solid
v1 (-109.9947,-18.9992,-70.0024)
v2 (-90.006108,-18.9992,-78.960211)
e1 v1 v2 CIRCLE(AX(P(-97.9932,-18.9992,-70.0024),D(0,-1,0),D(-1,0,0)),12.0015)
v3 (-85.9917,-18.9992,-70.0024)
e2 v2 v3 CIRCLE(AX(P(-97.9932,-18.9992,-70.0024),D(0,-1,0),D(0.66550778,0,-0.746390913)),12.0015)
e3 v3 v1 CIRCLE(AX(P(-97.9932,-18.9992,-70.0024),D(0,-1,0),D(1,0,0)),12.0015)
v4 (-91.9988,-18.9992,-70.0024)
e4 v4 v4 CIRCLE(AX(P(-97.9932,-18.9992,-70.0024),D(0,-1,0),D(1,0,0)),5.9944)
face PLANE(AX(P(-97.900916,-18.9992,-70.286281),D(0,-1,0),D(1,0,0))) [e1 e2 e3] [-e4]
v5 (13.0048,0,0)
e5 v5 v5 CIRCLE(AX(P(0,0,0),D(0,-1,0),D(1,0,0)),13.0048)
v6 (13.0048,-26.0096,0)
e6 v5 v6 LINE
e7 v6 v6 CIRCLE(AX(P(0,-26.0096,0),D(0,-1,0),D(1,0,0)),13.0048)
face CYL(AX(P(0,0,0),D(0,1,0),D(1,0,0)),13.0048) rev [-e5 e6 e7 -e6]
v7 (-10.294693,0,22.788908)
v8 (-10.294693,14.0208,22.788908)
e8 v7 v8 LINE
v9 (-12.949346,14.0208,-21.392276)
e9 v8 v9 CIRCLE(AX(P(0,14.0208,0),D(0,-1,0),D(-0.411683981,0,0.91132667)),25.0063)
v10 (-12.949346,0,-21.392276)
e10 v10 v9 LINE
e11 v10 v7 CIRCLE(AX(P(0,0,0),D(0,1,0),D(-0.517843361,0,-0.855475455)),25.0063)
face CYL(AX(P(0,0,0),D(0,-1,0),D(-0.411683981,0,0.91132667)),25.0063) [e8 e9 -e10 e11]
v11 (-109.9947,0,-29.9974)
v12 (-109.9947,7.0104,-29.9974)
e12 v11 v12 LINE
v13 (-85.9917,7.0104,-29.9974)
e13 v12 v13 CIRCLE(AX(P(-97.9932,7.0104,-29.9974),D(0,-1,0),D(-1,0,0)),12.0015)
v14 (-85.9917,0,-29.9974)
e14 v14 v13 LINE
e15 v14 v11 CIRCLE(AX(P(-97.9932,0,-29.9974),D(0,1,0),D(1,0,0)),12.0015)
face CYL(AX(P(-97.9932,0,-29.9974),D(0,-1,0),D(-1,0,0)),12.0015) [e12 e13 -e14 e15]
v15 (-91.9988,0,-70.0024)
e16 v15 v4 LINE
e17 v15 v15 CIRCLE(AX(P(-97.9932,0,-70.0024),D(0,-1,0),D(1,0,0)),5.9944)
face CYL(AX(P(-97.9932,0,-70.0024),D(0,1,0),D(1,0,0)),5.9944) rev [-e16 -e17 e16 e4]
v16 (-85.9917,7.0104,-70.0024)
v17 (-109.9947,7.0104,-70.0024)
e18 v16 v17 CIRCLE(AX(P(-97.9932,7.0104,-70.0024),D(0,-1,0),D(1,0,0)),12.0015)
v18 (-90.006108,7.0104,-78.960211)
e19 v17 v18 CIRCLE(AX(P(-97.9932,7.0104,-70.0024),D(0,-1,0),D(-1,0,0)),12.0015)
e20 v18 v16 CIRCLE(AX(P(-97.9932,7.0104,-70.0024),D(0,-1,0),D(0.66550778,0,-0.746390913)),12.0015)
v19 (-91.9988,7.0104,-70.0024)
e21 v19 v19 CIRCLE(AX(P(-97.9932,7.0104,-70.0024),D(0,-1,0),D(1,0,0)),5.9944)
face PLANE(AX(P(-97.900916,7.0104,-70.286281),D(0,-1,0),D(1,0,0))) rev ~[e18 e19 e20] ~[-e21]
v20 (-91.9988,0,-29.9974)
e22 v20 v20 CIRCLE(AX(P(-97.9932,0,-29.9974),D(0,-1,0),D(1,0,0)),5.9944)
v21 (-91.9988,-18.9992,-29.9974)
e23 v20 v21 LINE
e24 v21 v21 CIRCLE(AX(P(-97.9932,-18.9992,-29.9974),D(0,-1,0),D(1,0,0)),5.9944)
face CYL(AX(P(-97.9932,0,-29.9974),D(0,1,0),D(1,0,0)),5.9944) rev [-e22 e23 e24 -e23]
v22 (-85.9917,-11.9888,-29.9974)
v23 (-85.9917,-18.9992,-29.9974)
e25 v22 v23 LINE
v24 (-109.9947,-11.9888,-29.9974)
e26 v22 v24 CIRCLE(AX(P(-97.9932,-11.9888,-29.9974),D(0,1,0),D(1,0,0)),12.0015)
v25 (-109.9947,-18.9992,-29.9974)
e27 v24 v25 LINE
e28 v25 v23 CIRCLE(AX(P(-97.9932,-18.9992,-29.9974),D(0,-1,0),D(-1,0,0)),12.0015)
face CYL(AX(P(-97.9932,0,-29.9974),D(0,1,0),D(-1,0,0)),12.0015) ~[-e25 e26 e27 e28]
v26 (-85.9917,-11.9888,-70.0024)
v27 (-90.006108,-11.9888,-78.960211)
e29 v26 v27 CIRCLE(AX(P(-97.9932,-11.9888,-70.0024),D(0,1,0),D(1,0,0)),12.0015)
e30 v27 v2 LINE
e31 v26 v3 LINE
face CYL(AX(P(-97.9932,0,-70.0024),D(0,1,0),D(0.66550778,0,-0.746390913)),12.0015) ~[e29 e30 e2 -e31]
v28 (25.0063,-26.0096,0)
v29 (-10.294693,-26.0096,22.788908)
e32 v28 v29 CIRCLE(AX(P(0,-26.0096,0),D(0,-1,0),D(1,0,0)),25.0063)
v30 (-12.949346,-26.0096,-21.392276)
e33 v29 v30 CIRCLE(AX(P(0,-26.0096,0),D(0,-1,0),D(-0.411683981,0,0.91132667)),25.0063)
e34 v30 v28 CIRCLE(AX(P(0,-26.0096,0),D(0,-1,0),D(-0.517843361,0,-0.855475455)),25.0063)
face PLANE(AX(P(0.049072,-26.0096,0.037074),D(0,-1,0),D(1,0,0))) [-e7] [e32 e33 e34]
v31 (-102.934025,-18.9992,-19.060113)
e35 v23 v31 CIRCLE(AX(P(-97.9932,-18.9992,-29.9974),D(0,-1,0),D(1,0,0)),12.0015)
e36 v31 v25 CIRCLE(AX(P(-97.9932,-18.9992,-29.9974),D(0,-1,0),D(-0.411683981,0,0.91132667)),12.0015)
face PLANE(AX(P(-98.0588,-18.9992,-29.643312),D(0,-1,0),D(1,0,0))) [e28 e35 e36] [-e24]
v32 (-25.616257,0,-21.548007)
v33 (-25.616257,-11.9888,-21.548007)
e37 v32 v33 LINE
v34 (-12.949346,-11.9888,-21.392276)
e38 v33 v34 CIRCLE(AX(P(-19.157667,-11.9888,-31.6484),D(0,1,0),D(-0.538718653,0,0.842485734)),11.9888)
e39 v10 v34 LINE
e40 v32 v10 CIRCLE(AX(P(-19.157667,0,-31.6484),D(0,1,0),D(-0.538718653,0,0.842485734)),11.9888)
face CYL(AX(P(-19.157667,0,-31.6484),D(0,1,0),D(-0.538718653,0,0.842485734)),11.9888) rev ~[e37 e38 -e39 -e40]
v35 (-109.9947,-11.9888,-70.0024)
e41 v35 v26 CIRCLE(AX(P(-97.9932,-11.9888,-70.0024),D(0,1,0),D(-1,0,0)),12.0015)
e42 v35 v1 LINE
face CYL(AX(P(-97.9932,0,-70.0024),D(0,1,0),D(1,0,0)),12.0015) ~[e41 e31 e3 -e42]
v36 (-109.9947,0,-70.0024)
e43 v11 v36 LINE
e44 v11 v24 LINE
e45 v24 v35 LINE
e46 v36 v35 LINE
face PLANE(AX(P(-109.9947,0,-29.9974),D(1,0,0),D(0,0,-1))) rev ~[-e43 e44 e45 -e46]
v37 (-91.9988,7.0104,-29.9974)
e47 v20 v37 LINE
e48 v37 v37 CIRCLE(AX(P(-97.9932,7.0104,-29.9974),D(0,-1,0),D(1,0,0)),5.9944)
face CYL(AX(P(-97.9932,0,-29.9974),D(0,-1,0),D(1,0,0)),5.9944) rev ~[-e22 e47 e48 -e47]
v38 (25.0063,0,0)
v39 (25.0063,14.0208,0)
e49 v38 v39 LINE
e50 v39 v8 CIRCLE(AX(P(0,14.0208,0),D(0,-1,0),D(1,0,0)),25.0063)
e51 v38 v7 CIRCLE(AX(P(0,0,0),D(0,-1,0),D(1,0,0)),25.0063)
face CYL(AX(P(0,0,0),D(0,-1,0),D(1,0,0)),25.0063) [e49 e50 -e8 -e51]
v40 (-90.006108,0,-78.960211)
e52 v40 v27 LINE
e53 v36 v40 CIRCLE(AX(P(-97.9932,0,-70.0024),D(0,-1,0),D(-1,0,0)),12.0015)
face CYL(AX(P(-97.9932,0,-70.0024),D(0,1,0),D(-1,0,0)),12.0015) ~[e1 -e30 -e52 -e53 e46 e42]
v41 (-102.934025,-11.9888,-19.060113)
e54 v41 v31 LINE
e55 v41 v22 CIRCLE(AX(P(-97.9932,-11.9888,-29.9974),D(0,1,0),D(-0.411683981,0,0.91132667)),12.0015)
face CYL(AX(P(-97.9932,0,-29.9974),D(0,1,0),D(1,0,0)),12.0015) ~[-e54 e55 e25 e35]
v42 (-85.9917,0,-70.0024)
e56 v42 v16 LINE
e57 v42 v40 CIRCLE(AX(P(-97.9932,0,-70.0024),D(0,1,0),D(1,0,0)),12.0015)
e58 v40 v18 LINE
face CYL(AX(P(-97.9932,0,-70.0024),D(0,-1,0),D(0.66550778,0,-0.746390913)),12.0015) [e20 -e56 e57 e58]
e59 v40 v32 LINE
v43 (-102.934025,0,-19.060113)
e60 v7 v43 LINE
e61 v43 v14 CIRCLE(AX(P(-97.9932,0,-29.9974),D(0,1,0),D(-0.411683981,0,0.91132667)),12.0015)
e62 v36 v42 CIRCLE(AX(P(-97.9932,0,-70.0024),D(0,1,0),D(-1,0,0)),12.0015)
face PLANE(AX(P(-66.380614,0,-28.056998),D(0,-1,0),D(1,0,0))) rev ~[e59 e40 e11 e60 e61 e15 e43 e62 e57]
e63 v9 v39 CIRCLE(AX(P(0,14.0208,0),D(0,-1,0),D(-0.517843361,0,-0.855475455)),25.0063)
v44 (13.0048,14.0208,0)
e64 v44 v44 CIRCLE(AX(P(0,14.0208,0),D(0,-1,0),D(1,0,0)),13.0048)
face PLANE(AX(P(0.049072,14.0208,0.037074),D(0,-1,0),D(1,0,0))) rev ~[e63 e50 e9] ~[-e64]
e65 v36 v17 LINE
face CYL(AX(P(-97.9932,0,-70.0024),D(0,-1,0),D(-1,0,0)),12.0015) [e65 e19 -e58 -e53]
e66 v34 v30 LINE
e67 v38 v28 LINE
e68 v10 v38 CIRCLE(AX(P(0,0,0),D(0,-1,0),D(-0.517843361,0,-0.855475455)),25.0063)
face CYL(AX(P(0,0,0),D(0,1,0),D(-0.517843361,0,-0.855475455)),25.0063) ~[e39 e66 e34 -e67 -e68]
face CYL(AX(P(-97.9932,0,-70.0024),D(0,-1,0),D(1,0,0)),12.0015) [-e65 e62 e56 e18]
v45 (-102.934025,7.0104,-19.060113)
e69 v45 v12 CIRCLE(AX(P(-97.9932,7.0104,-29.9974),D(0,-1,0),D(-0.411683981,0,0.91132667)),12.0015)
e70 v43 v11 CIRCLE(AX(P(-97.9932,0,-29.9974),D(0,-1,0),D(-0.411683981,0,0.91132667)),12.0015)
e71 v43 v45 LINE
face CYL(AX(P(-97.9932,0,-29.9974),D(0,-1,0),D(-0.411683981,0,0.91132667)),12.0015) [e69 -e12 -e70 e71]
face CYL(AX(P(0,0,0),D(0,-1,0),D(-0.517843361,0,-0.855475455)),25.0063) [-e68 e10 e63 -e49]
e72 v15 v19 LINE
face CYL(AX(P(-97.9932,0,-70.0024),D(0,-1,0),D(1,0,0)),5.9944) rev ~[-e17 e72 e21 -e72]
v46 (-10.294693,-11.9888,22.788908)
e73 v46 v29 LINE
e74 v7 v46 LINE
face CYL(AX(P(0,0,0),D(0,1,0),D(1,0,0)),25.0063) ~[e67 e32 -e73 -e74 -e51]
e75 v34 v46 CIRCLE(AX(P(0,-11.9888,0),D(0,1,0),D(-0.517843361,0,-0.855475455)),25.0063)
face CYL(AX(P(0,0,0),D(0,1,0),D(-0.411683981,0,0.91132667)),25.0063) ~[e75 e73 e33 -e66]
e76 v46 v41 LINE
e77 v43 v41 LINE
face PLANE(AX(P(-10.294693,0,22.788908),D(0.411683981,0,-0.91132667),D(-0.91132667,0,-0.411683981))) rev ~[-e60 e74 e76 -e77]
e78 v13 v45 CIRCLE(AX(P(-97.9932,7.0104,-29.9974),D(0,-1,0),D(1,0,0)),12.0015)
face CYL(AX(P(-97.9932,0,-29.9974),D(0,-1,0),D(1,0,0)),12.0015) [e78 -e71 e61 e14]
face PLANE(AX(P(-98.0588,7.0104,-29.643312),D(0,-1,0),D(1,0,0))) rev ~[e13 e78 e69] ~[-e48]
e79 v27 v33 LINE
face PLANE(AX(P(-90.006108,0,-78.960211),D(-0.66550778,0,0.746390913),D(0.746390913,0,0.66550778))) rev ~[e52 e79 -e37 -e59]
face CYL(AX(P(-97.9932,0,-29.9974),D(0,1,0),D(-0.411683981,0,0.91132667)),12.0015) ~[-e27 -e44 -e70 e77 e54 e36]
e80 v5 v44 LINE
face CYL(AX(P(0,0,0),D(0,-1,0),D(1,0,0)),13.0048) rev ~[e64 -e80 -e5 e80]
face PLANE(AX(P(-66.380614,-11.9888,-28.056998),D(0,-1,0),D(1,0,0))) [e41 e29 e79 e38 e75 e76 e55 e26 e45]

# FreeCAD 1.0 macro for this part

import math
import FreeCAD as App
import Part
import Sketcher
from FreeCAD import Vector
Q = App.Units.Quantity

doc = App.newDocument("Part")
body = doc.addObject("PartDesign::Body", "Body")

# Sketch on XZ plane
sketch1 = doc.addObject("Sketcher::SketchObject", "Sketch")
body.addObject(sketch1)
sketch1.AttachmentSupport = (doc.XZ_Plane, [""])
sketch1.MapMode = "FlatFace"
sketch1.addGeometry([
    Part.ArcOfCircle(Part.Circle(Vector(-98, -30, 0), Vector(0, 0, 1), 12), math.radians(0), math.radians(114)),  # 0
    Part.ArcOfCircle(Part.Circle(Vector(-98, -30, 0), Vector(0, 0, 1), 12), math.radians(180), math.radians(360)),  # 1
    Part.LineSegment(Vector(-110, -30, 0), Vector(-110, -70, 0)),  # 2
    Part.ArcOfCircle(Part.Circle(Vector(-98, -70, 0), Vector(0, 0, 1), 12), math.radians(0), math.radians(180)),  # 3
    Part.ArcOfCircle(Part.Circle(Vector(-98, -70, 0), Vector(0, 0, 1), 12), math.radians(-48), math.radians(0)),  # 4
    Part.LineSegment(Vector(-90, -79, 0), Vector(-26, -22, 0)),  # 5
    Part.ArcOfCircle(Part.Circle(Vector(-19, -32, 0), Vector(0, 0, 1), 12), math.radians(59), math.radians(123)),  # 6
    Part.ArcOfCircle(Part.Circle(Vector(0, 0, 0), Vector(0, 0, 1), 25), math.radians(114), math.radians(239)),  # 7
    Part.LineSegment(Vector(-10, 23, 0), Vector(-103, -19, 0)),  # 8
], False)
sketch1.addConstraint([
    Sketcher.Constraint("Tangent", 0, 1, 1, 2),
    Sketcher.Constraint("Tangent", 1, 1, 2, 1),
    Sketcher.Constraint("Tangent", 2, 2, 3, 2),
    Sketcher.Constraint("Tangent", 3, 1, 4, 2),
    Sketcher.Constraint("Tangent", 4, 1, 5, 1),
    Sketcher.Constraint("Coincident", 5, 2, 6, 2),
    Sketcher.Constraint("Tangent", 6, 1, 7, 2),
    Sketcher.Constraint("Tangent", 7, 1, 8, 1),
    Sketcher.Constraint("Tangent", 8, 2, 0, 2),
    Sketcher.Constraint("Vertical", 2),
    Sketcher.Constraint("Coincident", 7, 3, -1, 1),
    Sketcher.Constraint("Equal", 0, 1),
    Sketcher.Constraint("Equal", 1, 3),
    Sketcher.Constraint("Equal", 3, 4),
    Sketcher.Constraint("Horizontal", 1, 3, 0, 1),
    Sketcher.Constraint("Horizontal", 2, 2, 3, 1),
    Sketcher.Constraint("Radius", 6, Q("0.472 in")),
    Sketcher.Constraint("Radius", 0, Q("0.4725 in")),
    Sketcher.Constraint("Radius", 7, Q("0.9845 in")),
    Sketcher.Constraint("DistanceY", 2, 2, 2, 1, Q("1.575 in")),
    Sketcher.Constraint("DistanceY", 3, 3, 6, 3, Q("1.51 in")),
    Sketcher.Constraint("DistanceX", 0, 3, -1, 1, Q("3.858 in")),
    Sketcher.Constraint("DistanceY", 0, 3, -1, 1, Q("1.181 in")),
    Sketcher.Constraint("DistanceX", 5, 2, 6, 3, Q("6.45859 mm")),
])
pad1 = doc.addObject("PartDesign::Pad", "Pad")
body.addObject(pad1)
pad1.Profile = sketch1
pad1.Length = Q("0.472 in")

# Sketch on XZ plane
sketch2 = doc.addObject("Sketcher::SketchObject", "Sketch001")
body.addObject(sketch2)
sketch2.AttachmentSupport = (doc.XZ_Plane, [""])
sketch2.MapMode = "FlatFace"
sketch2.addGeometry([
    Part.ArcOfCircle(Part.Circle(Vector(-98, -30, 0), Vector(0, 0, 1), 12), math.radians(180), math.radians(360)),  # 0
    Part.ArcOfCircle(Part.Circle(Vector(-98, -30, 0), Vector(0, 0, 1), 12), math.radians(0), math.radians(114)),  # 1
    Part.ArcOfCircle(Part.Circle(Vector(-98, -30, 0), Vector(0, 0, 1), 12), math.radians(114), math.radians(180)),  # 2
    Part.Circle(Vector(-98, -30, 0), Vector(0, 0, 1), 6),  # 3
    Part.ArcOfCircle(Part.Circle(Vector(-98, -70, 0), Vector(0, 0, 1), 12), math.radians(0), math.radians(180)),  # 4
    Part.ArcOfCircle(Part.Circle(Vector(-98, -70, 0), Vector(0, 0, 1), 12), math.radians(180), math.radians(312)),  # 5
    Part.ArcOfCircle(Part.Circle(Vector(-98, -70, 0), Vector(0, 0, 1), 12), math.radians(-48), math.radians(0)),  # 6
    Part.Circle(Vector(-98, -70, 0), Vector(0, 0, 1), 6),  # 7
], False)
sketch2.addConstraint([
    Sketcher.Constraint("Tangent", 0, 2, 1, 1),
    Sketcher.Constraint("Tangent", 1, 2, 2, 1),
    Sketcher.Constraint("Tangent", 2, 2, 0, 1),
    Sketcher.Constraint("Tangent", 4, 2, 5, 1),
    Sketcher.Constraint("Tangent", 5, 2, 6, 1),
    Sketcher.Constraint("Tangent", 6, 2, 4, 1),
    Sketcher.Constraint("Coincident", 3, 3, 0, 3),
    Sketcher.Constraint("Coincident", 7, 3, 4, 3),
    Sketcher.Constraint("Equal", 2, 4),
    Sketcher.Constraint("Equal", 3, 7),
    Sketcher.Constraint("Horizontal", 3, 3, 0, 2),
    Sketcher.Constraint("Horizontal", 0, 2, 2, 2),
    Sketcher.Constraint("Horizontal", 7, 3, 4, 2),
    Sketcher.Constraint("Horizontal", 4, 2, 6, 2),
    Sketcher.Constraint("Vertical", 3, 3, 4, 3),
    Sketcher.Constraint("Diameter", 3, Q("0.472 in")),
    Sketcher.Constraint("Radius", 0, Q("0.4725 in")),
    Sketcher.Constraint("DistanceX", 0, 3, -1, 1, Q("3.858 in")),
    Sketcher.Constraint("DistanceY", 0, 3, -1, 1, Q("1.181 in")),
    Sketcher.Constraint("DistanceY", 4, 3, -1, 1, Q("2.756 in")),
    Sketcher.Constraint("DistanceX", 5, 2, -1, 1, Q("90.006108 mm")),
    Sketcher.Constraint("DistanceX", 1, 2, -1, 1, Q("102.934025 mm")),
])
pad2 = doc.addObject("PartDesign::Pad", "Pad001")
body.addObject(pad2)
pad2.Profile = sketch2
pad2.Type = "TwoLengths"
pad2.Length = Q("0.276 in")
pad2.Length2 = Q("0.748 in")
pad2.Reversed = True

# Sketch on XZ plane
sketch3 = doc.addObject("Sketcher::SketchObject", "Sketch002")
body.addObject(sketch3)
sketch3.AttachmentSupport = (doc.XZ_Plane, [""])
sketch3.MapMode = "FlatFace"
sketch3.addGeometry([
    Part.ArcOfCircle(Part.Circle(Vector(0, 0, 0), Vector(0, 0, 1), 25), math.radians(0), math.radians(114)),
    Part.ArcOfCircle(Part.Circle(Vector(0, 0, 0), Vector(0, 0, 1), 25), math.radians(114), math.radians(239)),
    Part.ArcOfCircle(Part.Circle(Vector(0, 0, 0), Vector(0, 0, 1), 25), math.radians(-121), math.radians(0)),
    Part.Circle(Vector(0, 0, 0), Vector(0, 0, 1), 13),
], False)
sketch3.addConstraint([
    Sketcher.Constraint("Tangent", 0, 2, 1, 1),
    Sketcher.Constraint("Tangent", 1, 2, 2, 1),
    Sketcher.Constraint("Tangent", 2, 2, 0, 1),
    Sketcher.Constraint("Coincident", 0, 3, -1, 1),
    Sketcher.Constraint("Coincident", 3, 3, -1, 1),
    Sketcher.Constraint("PointOnObject", 2, 2, -1),
    Sketcher.Constraint("Diameter", 3, Q("1.024 in")),
    Sketcher.Constraint("Radius", 0, Q("0.9845 in")),
    Sketcher.Constraint("DistanceY", -1, 1, 0, 2, Q("22.788908 mm")),
    Sketcher.Constraint("DistanceX", 1, 2, -1, 1, Q("12.949346 mm")),
])
pad3 = doc.addObject("PartDesign::Pad", "Pad002")
body.addObject(pad3)
pad3.Profile = sketch3
pad3.Type = "TwoLengths"
pad3.Length = Q("0.552 in")
pad3.Length2 = Q("1.024 in")
pad3.Reversed = True

doc.recompute()
